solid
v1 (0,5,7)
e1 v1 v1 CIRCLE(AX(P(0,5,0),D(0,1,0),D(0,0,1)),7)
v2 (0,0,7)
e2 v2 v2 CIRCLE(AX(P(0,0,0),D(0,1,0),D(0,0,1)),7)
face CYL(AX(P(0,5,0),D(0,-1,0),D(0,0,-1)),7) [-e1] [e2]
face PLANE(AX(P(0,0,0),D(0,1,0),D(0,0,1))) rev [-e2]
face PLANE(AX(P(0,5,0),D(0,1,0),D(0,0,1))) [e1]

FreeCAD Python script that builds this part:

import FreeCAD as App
import Part
import Sketcher
from FreeCAD import Vector

doc = App.newDocument("Part")
body = doc.addObject("PartDesign::Body", "Body")

# Sketch on XZ plane
sketch1 = body.newObject("Sketcher::SketchObject", "Sketch")
sketch1.AttachmentSupport = (doc.getObject("XZ_Plane"), [""])
sketch1.MapMode = "FlatFace"
sketch1.addGeometry(Part.Circle(Vector(0, 0, 0), Vector(0, 0, 1), 7), False)
sketch1.addConstraint([
    Sketcher.Constraint("Coincident", 0, 3, -1, 1),
    Sketcher.Constraint("Diameter", 0, 14.0),
])
pad1 = body.newObject("PartDesign::Pad", "Pad")
pad1.Profile = sketch1
pad1.Length = 5
pad1.Reversed = True

doc.recompute()
